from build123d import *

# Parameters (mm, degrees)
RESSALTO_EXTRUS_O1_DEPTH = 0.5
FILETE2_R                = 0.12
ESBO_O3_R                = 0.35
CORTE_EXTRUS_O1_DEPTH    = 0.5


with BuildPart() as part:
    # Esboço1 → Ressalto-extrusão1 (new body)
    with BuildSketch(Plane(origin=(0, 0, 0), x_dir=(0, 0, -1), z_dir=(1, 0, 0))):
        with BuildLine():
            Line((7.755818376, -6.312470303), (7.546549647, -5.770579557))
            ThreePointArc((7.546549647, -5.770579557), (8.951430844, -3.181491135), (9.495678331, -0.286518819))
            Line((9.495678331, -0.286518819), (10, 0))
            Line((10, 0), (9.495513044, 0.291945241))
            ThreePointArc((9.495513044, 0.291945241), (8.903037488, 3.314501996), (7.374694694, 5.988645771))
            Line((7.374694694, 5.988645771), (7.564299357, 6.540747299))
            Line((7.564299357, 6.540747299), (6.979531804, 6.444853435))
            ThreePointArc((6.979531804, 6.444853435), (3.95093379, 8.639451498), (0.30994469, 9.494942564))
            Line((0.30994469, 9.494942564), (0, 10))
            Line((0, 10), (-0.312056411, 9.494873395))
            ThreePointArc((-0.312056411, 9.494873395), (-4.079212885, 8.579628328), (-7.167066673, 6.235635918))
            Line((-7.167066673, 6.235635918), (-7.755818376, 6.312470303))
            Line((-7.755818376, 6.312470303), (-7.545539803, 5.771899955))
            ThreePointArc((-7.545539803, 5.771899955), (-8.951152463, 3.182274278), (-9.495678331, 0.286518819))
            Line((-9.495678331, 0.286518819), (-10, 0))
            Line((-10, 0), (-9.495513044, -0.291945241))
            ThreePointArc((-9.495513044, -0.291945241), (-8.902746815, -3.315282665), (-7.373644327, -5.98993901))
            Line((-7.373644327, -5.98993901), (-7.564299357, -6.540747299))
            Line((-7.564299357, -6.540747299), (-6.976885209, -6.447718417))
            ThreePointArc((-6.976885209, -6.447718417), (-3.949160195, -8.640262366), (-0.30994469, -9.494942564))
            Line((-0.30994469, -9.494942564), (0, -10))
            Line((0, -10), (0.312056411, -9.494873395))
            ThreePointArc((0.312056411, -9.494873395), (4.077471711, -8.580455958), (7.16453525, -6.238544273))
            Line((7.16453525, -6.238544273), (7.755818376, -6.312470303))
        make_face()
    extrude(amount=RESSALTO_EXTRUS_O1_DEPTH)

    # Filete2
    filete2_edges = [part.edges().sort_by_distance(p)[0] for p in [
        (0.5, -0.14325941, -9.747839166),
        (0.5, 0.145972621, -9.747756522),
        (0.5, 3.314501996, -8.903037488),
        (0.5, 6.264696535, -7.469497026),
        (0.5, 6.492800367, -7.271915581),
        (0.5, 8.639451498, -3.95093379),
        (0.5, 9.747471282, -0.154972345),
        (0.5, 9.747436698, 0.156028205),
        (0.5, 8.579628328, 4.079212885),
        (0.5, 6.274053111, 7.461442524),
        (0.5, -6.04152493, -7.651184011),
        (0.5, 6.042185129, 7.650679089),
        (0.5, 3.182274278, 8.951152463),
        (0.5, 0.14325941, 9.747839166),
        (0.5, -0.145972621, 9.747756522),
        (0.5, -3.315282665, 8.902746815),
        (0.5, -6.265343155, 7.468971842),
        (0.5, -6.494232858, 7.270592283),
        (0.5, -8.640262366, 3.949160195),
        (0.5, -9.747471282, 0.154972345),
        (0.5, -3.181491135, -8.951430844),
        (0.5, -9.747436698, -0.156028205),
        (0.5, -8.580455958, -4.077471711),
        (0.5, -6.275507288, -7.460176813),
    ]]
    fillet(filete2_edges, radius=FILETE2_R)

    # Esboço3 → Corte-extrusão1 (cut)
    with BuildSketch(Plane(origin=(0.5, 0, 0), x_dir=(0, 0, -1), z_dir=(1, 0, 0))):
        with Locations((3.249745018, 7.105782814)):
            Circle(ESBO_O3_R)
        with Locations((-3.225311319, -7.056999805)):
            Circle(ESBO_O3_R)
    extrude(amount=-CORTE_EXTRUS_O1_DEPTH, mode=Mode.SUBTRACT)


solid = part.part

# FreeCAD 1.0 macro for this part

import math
import FreeCAD as App
import Part
import Sketcher

V = App.Vector
Q = App.Units.Quantity


def edges_at(feature, points):
    """Names of the edges that pass closest to the given points."""
    edges = feature.Shape.Edges
    near = lambda p: min(range(len(edges)), key=lambda i: edges[i].distToShape(Part.Vertex(*p))[0])
    return sorted({f"Edge{near(p) + 1}" for p in points})

doc = App.newDocument("Part")
params = doc.addObject("Spreadsheet::Sheet", "Params")
for row, (alias, value) in enumerate([
    ("sketch1_radius", "9.5 mm"),
    ("pad1_length", "0.5 mm"),
    ("fillet_radius", "0.12 mm"),
    ("sketch2_diameter", "0.7 mm"),
    ("pocket1_length", "0.5 mm"),
], start=1):
    params.set(f"A{row}", alias)
    params.set(f"B{row}", "=" + value)
    params.setAlias(f"B{row}", alias)

body = doc.addObject("PartDesign::Body", "Body")

sketch1 = body.newObject("Sketcher::SketchObject", "Sketch")
sketch1.AttachmentSupport = (doc.getObject("YZ_Plane"), [""])
sketch1.MapMode = "FlatFace"
sketch1.addGeometry([
    Part.LineSegment(V(-6.3, -7.8, 0), V(-5.8, -7.5, 0)),
    Part.ArcOfCircle(Part.Circle(V(0, 0, 0), V(0, 0, 1), 9.5), math.radians(-127), math.radians(-92)),
    Part.LineSegment(V(-0.3, -9.5, 0), V(0, -10, 0)),
    Part.LineSegment(V(0, -10, 0), V(0.3, -9.5, 0)),
    Part.ArcOfCircle(Part.Circle(V(0, 0, 0), V(0, 0, 1), 9.5), math.radians(-88), math.radians(-51)),
    Part.LineSegment(V(6, -7.4, 0), V(6.5, -7.6, 0)),
    Part.LineSegment(V(6.5, -7.6, 0), V(6.4, -7, 0)),
    Part.ArcOfCircle(Part.Circle(V(0, 0, 0), V(0, 0, 1), 9.5), math.radians(-47), math.radians(-2)),
    Part.LineSegment(V(9.5, -0.3, 0), V(10, 0, 0)),
    Part.LineSegment(V(10, 0, 0), V(9.5, 0.3, 0)),
    Part.ArcOfCircle(Part.Circle(V(0, 0, 0), V(0, 0, 1), 9.5), math.radians(2), math.radians(49)),
    Part.LineSegment(V(6.2, 7.2, 0), V(6.3, 7.8, 0)),
    Part.LineSegment(V(6.3, 7.8, 0), V(5.8, 7.5, 0)),
    Part.ArcOfCircle(Part.Circle(V(0, 0, 0), V(0, 0, 1), 9.5), math.radians(53), math.radians(88)),
    Part.LineSegment(V(0.3, 9.5, 0), V(0, 10, 0)),
    Part.LineSegment(V(0, 10, 0), V(-0.3, 9.5, 0)),
    Part.ArcOfCircle(Part.Circle(V(0, 0, 0), V(0, 0, 1), 9.5), math.radians(92), math.radians(129)),
    Part.LineSegment(V(-6, 7.4, 0), V(-6.5, 7.6, 0)),
    Part.LineSegment(V(-6.5, 7.6, 0), V(-6.4, 7, 0)),
    Part.ArcOfCircle(Part.Circle(V(0, 0, 0), V(0, 0, 1), 9.5), math.radians(133), math.radians(178)),
    Part.LineSegment(V(-9.5, 0.3, 0), V(-10, 0, 0)),
    Part.LineSegment(V(-10, 0, 0), V(-9.5, -0.3, 0)),
    Part.ArcOfCircle(Part.Circle(V(0, 0, 0), V(0, 0, 1), 9.5), math.radians(-178), math.radians(-131)),
    Part.LineSegment(V(-6.2, -7.2, 0), V(-6.3, -7.8, 0)),
], False)
sketch1.addConstraint([
    Sketcher.Constraint("Coincident", 0, 2, 1, 1),
    Sketcher.Constraint("Coincident", 1, 2, 2, 1),
    Sketcher.Constraint("Coincident", 2, 2, 3, 1),
    Sketcher.Constraint("Coincident", 3, 2, 4, 1),
    Sketcher.Constraint("Coincident", 4, 2, 5, 1),
    Sketcher.Constraint("Coincident", 5, 2, 6, 1),
    Sketcher.Constraint("Coincident", 6, 2, 7, 1),
    Sketcher.Constraint("Coincident", 7, 2, 8, 1),
    Sketcher.Constraint("Coincident", 8, 2, 9, 1),
    Sketcher.Constraint("Coincident", 9, 2, 10, 1),
    Sketcher.Constraint("Coincident", 10, 2, 11, 1),
    Sketcher.Constraint("Coincident", 11, 2, 12, 1),
    Sketcher.Constraint("Coincident", 12, 2, 13, 1),
    Sketcher.Constraint("Coincident", 13, 2, 14, 1),
    Sketcher.Constraint("Coincident", 14, 2, 15, 1),
    Sketcher.Constraint("Coincident", 15, 2, 16, 1),
    Sketcher.Constraint("Coincident", 16, 2, 17, 1),
    Sketcher.Constraint("Coincident", 17, 2, 18, 1),
    Sketcher.Constraint("Coincident", 18, 2, 19, 1),
    Sketcher.Constraint("Coincident", 19, 2, 20, 1),
    Sketcher.Constraint("Coincident", 20, 2, 21, 1),
    Sketcher.Constraint("Coincident", 21, 2, 22, 1),
    Sketcher.Constraint("Coincident", 22, 2, 23, 1),
    Sketcher.Constraint("Coincident", 23, 2, 0, 1),
    Sketcher.Constraint("Coincident", 1, 3, -1, 1),
    Sketcher.Constraint("Coincident", 4, 3, -1, 1),
    Sketcher.Constraint("Coincident", 7, 3, -1, 1),
    Sketcher.Constraint("Coincident", 10, 3, -1, 1),
    Sketcher.Constraint("Coincident", 13, 3, -1, 1),
    Sketcher.Constraint("Coincident", 16, 3, -1, 1),
    Sketcher.Constraint("Coincident", 19, 3, -1, 1),
    Sketcher.Constraint("Coincident", 22, 3, -1, 1),
    Sketcher.Constraint("Equal", 1, 4),
    Sketcher.Constraint("Equal", 4, 7),
    Sketcher.Constraint("Equal", 7, 10),
    Sketcher.Constraint("Equal", 10, 13),
    Sketcher.Constraint("Equal", 13, 16),
    Sketcher.Constraint("Equal", 16, 19),
    Sketcher.Constraint("Equal", 19, 22),
    Sketcher.Constraint("Symmetric", 2, 2, 14, 2, -1, 1),
    Sketcher.Constraint("Symmetric", 5, 2, 17, 2, -1, 1),
    Sketcher.Constraint("Symmetric", 8, 2, 20, 2, -1, 1),
    Sketcher.Constraint("Symmetric", 11, 2, 23, 2, -1, 1),
    Sketcher.Constraint("PointOnObject", 2, 2, -2),
    Sketcher.Constraint("PointOnObject", 8, 2, -1),
    Sketcher.Constraint("Parallel", 2, 14),
    Sketcher.Constraint("Parallel", 3, 15),
    Sketcher.Constraint("Parallel", 8, 20),
    Sketcher.Constraint("Parallel", 9, 21),
    Sketcher.Constraint("Equal", 6, 8),
    Sketcher.Constraint("Equal", 9, 11),
    Sketcher.Constraint("Equal", 2, 12),
    Sketcher.Constraint("Equal", 15, 17),
    Sketcher.Constraint("Radius", 1, Q("9.5 mm")),
    Sketcher.Constraint("DistanceY", 2, 2, -1, 1, Q("10 mm")),
    Sketcher.Constraint("DistanceX", -1, 1, 8, 2, Q("10 mm")),
    Sketcher.Constraint("DistanceY", 7, 2, 9, 2, Q("0.622001 mm")),
    Sketcher.Constraint("DistanceY", 5, 2, -1, 1, Q("7.564299 mm")),
    Sketcher.Constraint("DistanceX", -1, 1, 12, 2, Q("5.7719 mm")),
    Sketcher.Constraint("DistanceX", 3, 2, 4, 2, Q("5.696701 mm")),
    Sketcher.Constraint("DistanceX", 4, 2, 5, 2, Q("0.552102 mm")),
    Sketcher.Constraint("DistanceY", 19, 2, 16, 2, Q("7.0637 mm")),
    Sketcher.Constraint("Distance", 2, Q("0.580029 mm")),
    Sketcher.Constraint("Distance", 3, Q("0.582871 mm")),
    Sketcher.Constraint("DistanceX", 0, 2, -1, 1, Q("5.77058 mm")),
    Sketcher.Constraint("DistanceX", -1, 1, 11, 2, Q("6.31247 mm")),
    Sketcher.Constraint("DistanceX", 18, 2, -1, 1, Q("6.447718 mm")),
    Sketcher.Constraint("DistanceX", 22, 2, 3, 2, Q("6.53049 mm")),
])
sketch1.setExpression("Constraints[53]", "Params.sketch1_radius")
pad1 = body.newObject("PartDesign::Pad", "Pad")
pad1.Profile = sketch1
pad1.setExpression("Length", "Params.pad1_length")
doc.recompute()

fillet = body.newObject("PartDesign::Fillet", "Fillet")
fillet.Base = (pad1, edges_at(pad1, [
    (0.5, -0.143, -9.748),
    (0.5, 0.146, -9.748),
    (0.5, 3.315, -8.903),
    (0.5, 6.265, -7.469),
    (0.5, 6.493, -7.272),
    (0.5, 8.639, -3.951),
    (0.5, 9.747, -0.155),
    (0.5, 9.747, 0.156),
    (0.5, 8.58, 4.079),
    (0.5, 6.274, 7.461),
    (0.5, -6.042, -7.651),
    (0.5, 6.042, 7.651),
    (0.5, 3.182, 8.951),
    (0.5, 0.143, 9.748),
    (0.5, -0.146, 9.748),
    (0.5, -3.315, 8.903),
    (0.5, -6.265, 7.469),
    (0.5, -6.494, 7.271),
    (0.5, -8.64, 3.949),
    (0.5, -9.747, 0.155),
    (0.5, -3.181, -8.951),
    (0.5, -9.747, -0.156),
    (0.5, -8.58, -4.077),
    (0.5, -6.276, -7.46),
]))
fillet.setExpression("Radius", "Params.fillet_radius")

sketch2 = body.newObject("Sketcher::SketchObject", "Sketch001")
sketch2.AttachmentSupport = (doc.getObject("YZ_Plane"), [""])
sketch2.MapMode = "FlatFace"
sketch2.AttachmentOffset = App.Placement(V(0, 0, 0.5), App.Rotation())
sketch2.addGeometry([
    Part.Circle(V(7.11, -3.25, 0), V(0, 0, 1), 0.35),
    Part.Circle(V(-7.06, 3.23, 0), V(0, 0, 1), 0.35),
], False)
sketch2.addConstraint([
    Sketcher.Constraint("Equal", 0, 1),
    Sketcher.Constraint("Diameter", 0, Q("0.7 mm")),
    Sketcher.Constraint("DistanceX", 1, 3, -1, 1, Q("7.057 mm")),
    Sketcher.Constraint("DistanceY", -1, 1, 1, 3, Q("3.225311 mm")),
    Sketcher.Constraint("DistanceX", -1, 1, 0, 3, Q("7.105783 mm")),
    Sketcher.Constraint("DistanceY", 0, 3, -1, 1, Q("3.249745 mm")),
])
sketch2.setExpression("Constraints[1]", "Params.sketch2_diameter")
pocket1 = body.newObject("PartDesign::Pocket", "Pocket")
pocket1.Profile = sketch2
pocket1.setExpression("Length", "Params.pocket1_length")

doc.recompute()
